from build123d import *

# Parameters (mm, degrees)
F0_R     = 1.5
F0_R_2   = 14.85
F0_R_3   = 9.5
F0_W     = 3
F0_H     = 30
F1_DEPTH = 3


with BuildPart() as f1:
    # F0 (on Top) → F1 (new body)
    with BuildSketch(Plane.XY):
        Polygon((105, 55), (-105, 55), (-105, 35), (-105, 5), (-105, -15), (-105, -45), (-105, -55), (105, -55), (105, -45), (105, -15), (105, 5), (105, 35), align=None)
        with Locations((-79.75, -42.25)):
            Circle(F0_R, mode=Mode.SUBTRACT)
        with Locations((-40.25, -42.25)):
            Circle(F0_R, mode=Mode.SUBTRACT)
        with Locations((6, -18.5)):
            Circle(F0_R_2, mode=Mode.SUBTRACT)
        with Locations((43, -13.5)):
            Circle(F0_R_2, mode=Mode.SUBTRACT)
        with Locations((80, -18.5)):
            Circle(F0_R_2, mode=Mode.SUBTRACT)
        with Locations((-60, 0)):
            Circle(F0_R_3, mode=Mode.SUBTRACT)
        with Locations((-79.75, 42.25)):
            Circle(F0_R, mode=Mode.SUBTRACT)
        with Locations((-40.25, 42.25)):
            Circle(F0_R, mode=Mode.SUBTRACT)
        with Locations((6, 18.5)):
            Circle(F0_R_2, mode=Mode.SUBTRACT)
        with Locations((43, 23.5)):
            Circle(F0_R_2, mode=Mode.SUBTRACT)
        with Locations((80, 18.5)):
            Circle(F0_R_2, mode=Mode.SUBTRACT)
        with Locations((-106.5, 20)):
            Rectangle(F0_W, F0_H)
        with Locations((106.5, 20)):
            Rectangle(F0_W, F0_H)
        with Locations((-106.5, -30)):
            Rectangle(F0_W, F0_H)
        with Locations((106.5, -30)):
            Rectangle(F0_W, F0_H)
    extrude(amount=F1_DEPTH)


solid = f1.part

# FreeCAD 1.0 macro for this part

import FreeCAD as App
import Part
import Sketcher
from FreeCAD import Vector
Q = App.Units.Quantity

doc = App.newDocument("Part")
body = doc.addObject("PartDesign::Body", "Body")

sketch1 = body.newObject("Sketcher::SketchObject", "Sketch")
sketch1.AttachmentSupport = (doc.getObject("XY_Plane"), [""])
sketch1.MapMode = "FlatFace"
sketch1.addGeometry([
    Part.LineSegment(Vector(105, 55, 0), Vector(-105, 55, 0)),
    Part.LineSegment(Vector(-105, 55, 0), Vector(-105, 35, 0)),
    Part.LineSegment(Vector(-105, 35, 0), Vector(-108, 35, 0)),
    Part.LineSegment(Vector(-108, 35, 0), Vector(-108, 5, 0)),
    Part.LineSegment(Vector(-108, 5, 0), Vector(-105, 5, 0)),
    Part.LineSegment(Vector(-105, 5, 0), Vector(-105, -15, 0)),
    Part.LineSegment(Vector(-105, -15, 0), Vector(-108, -15, 0)),
    Part.LineSegment(Vector(-108, -15, 0), Vector(-108, -45, 0)),
    Part.LineSegment(Vector(-108, -45, 0), Vector(-105, -45, 0)),
    Part.LineSegment(Vector(-105, -45, 0), Vector(-105, -55, 0)),
    Part.LineSegment(Vector(-105, -55, 0), Vector(105, -55, 0)),
    Part.LineSegment(Vector(105, -55, 0), Vector(105, -45, 0)),
    Part.LineSegment(Vector(105, -45, 0), Vector(108, -45, 0)),
    Part.LineSegment(Vector(108, -45, 0), Vector(108, -15, 0)),
    Part.LineSegment(Vector(108, -15, 0), Vector(105, -15, 0)),
    Part.LineSegment(Vector(105, -15, 0), Vector(105, 5, 0)),
    Part.LineSegment(Vector(105, 5, 0), Vector(108, 5, 0)),
    Part.LineSegment(Vector(108, 5, 0), Vector(108, 35, 0)),
    Part.LineSegment(Vector(108, 35, 0), Vector(105, 35, 0)),
    Part.LineSegment(Vector(105, 35, 0), Vector(105, 55, 0)),
    Part.Circle(Vector(-79.75, -42.25, 0), Vector(0, 0, 1), 1.5),
    Part.Circle(Vector(-40.25, -42.25, 0), Vector(0, 0, 1), 1.5),
    Part.Circle(Vector(6, -18.5, 0), Vector(0, 0, 1), 14.85),
    Part.Circle(Vector(43, -13.5, 0), Vector(0, 0, 1), 14.85),
    Part.Circle(Vector(80, -18.5, 0), Vector(0, 0, 1), 14.85),
    Part.Circle(Vector(-60, 0, 0), Vector(0, 0, 1), 9.5),
    Part.Circle(Vector(6, 18.5, 0), Vector(0, 0, 1), 14.85),
    Part.Circle(Vector(-79.75, 42.25, 0), Vector(0, 0, 1), 1.5),
    Part.Circle(Vector(-40.25, 42.25, 0), Vector(0, 0, 1), 1.5),
    Part.Circle(Vector(80, 18.5, 0), Vector(0, 0, 1), 14.85),
    Part.Circle(Vector(43, 23.5, 0), Vector(0, 0, 1), 14.85),
], False)
sketch1.addConstraint([
    Sketcher.Constraint("Coincident", 0, 2, 1, 1),
    Sketcher.Constraint("Coincident", 1, 2, 2, 1),
    Sketcher.Constraint("Coincident", 2, 2, 3, 1),
    Sketcher.Constraint("Coincident", 3, 2, 4, 1),
    Sketcher.Constraint("Coincident", 4, 2, 5, 1),
    Sketcher.Constraint("Coincident", 5, 2, 6, 1),
    Sketcher.Constraint("Coincident", 6, 2, 7, 1),
    Sketcher.Constraint("Coincident", 7, 2, 8, 1),
    Sketcher.Constraint("Coincident", 8, 2, 9, 1),
    Sketcher.Constraint("Coincident", 9, 2, 10, 1),
    Sketcher.Constraint("Coincident", 10, 2, 11, 1),
    Sketcher.Constraint("Coincident", 11, 2, 12, 1),
    Sketcher.Constraint("Coincident", 12, 2, 13, 1),
    Sketcher.Constraint("Coincident", 13, 2, 14, 1),
    Sketcher.Constraint("Coincident", 14, 2, 15, 1),
    Sketcher.Constraint("Coincident", 15, 2, 16, 1),
    Sketcher.Constraint("Coincident", 16, 2, 17, 1),
    Sketcher.Constraint("Coincident", 17, 2, 18, 1),
    Sketcher.Constraint("Coincident", 18, 2, 19, 1),
    Sketcher.Constraint("Coincident", 19, 2, 0, 1),
    Sketcher.Constraint("Horizontal", 0),
    Sketcher.Constraint("Vertical", 1),
    Sketcher.Constraint("Horizontal", 2),
    Sketcher.Constraint("Vertical", 3),
    Sketcher.Constraint("Horizontal", 4),
    Sketcher.Constraint("Vertical", 5),
    Sketcher.Constraint("Horizontal", 6),
    Sketcher.Constraint("Vertical", 7),
    Sketcher.Constraint("Horizontal", 8),
    Sketcher.Constraint("Vertical", 9),
    Sketcher.Constraint("Horizontal", 10),
    Sketcher.Constraint("Vertical", 11),
    Sketcher.Constraint("Horizontal", 12),
    Sketcher.Constraint("Vertical", 13),
    Sketcher.Constraint("Horizontal", 14),
    Sketcher.Constraint("Vertical", 15),
    Sketcher.Constraint("Horizontal", 16),
    Sketcher.Constraint("Vertical", 17),
    Sketcher.Constraint("Horizontal", 18),
    Sketcher.Constraint("Vertical", 19),
    Sketcher.Constraint("Equal", 20, 21),
    Sketcher.Constraint("Equal", 22, 23),
    Sketcher.Constraint("Equal", 23, 24),
    Sketcher.Constraint("Equal", 24, 26),
    Sketcher.Constraint("Equal", 21, 27),
    Sketcher.Constraint("Equal", 27, 28),
    Sketcher.Constraint("Equal", 26, 29),
    Sketcher.Constraint("Equal", 29, 30),
    Sketcher.Constraint("Symmetric", 0, 2, 10, 2, -1, 1),
    Sketcher.Constraint("Symmetric", 8, 2, 11, 2, -2),
    Sketcher.Constraint("Symmetric", 6, 2, 13, 2, -2),
    Sketcher.Constraint("Symmetric", 4, 2, 15, 2, -2),
    Sketcher.Constraint("Symmetric", 2, 2, 17, 2, -2),
    Sketcher.Constraint("Symmetric", 22, 3, 26, 3, -1),
    Sketcher.Constraint("Symmetric", 20, 3, 27, 3, -1),
    Sketcher.Constraint("Symmetric", 21, 3, 28, 3, -1),
    Sketcher.Constraint("Symmetric", 24, 3, 29, 3, -1),
    Sketcher.Constraint("PointOnObject", 25, 3, -1),
    Sketcher.Constraint("Horizontal", 20, 3, 21, 3),
    Sketcher.Constraint("Horizontal", 22, 3, 24, 3),
    Sketcher.Constraint("Vertical", 23, 3, 30, 3),
    Sketcher.Constraint("Vertical", 1, 2, 4, 2),
    Sketcher.Constraint("Vertical", 3, 2, 6, 2),
    Sketcher.Constraint("Vertical", 15, 2, 18, 2),
    Sketcher.Constraint("Equal", 1, 5),
    Sketcher.Constraint("Equal", 3, 7),
    Sketcher.Constraint("Diameter", 20, Q("3 mm")),
    Sketcher.Constraint("Diameter", 25, Q("19 mm")),
    Sketcher.Constraint("Diameter", 22, Q("29.7 mm")),
    Sketcher.Constraint("DistanceX", 0, 2, 0, 1, Q("210 mm")),
    Sketcher.Constraint("DistanceX", 2, 2, 2, 1, Q("3 mm")),
    Sketcher.Constraint("DistanceY", 1, 2, 1, 1, Q("20 mm")),
    Sketcher.Constraint("DistanceY", 3, 2, 3, 1, Q("30 mm")),
    Sketcher.Constraint("DistanceY", 9, 2, 9, 1, Q("10 mm")),
    Sketcher.Constraint("DistanceX", -1, 1, 22, 3, Q("6 mm")),
    Sketcher.Constraint("DistanceX", -1, 1, 23, 3, Q("43 mm")),
    Sketcher.Constraint("DistanceX", -1, 1, 24, 3, Q("80 mm")),
    Sketcher.Constraint("DistanceX", 25, 3, -1, 1, Q("60 mm")),
    Sketcher.Constraint("DistanceY", 22, 3, 23, 3, Q("5 mm")),
    Sketcher.Constraint("DistanceY", 22, 3, 26, 3, Q("37 mm")),
    Sketcher.Constraint("DistanceY", 23, 3, 30, 3, Q("37 mm")),
    Sketcher.Constraint("DistanceX", 20, 3, 21, 3, Q("39.5 mm")),
    Sketcher.Constraint("DistanceY", 20, 3, 27, 3, Q("84.5 mm")),
    Sketcher.Constraint("DistanceX", 20, 3, -1, 1, Q("79.75 mm")),
])
pad1 = body.newObject("PartDesign::Pad", "Pad")
pad1.Profile = sketch1
pad1.Length = 3

doc.recompute()
